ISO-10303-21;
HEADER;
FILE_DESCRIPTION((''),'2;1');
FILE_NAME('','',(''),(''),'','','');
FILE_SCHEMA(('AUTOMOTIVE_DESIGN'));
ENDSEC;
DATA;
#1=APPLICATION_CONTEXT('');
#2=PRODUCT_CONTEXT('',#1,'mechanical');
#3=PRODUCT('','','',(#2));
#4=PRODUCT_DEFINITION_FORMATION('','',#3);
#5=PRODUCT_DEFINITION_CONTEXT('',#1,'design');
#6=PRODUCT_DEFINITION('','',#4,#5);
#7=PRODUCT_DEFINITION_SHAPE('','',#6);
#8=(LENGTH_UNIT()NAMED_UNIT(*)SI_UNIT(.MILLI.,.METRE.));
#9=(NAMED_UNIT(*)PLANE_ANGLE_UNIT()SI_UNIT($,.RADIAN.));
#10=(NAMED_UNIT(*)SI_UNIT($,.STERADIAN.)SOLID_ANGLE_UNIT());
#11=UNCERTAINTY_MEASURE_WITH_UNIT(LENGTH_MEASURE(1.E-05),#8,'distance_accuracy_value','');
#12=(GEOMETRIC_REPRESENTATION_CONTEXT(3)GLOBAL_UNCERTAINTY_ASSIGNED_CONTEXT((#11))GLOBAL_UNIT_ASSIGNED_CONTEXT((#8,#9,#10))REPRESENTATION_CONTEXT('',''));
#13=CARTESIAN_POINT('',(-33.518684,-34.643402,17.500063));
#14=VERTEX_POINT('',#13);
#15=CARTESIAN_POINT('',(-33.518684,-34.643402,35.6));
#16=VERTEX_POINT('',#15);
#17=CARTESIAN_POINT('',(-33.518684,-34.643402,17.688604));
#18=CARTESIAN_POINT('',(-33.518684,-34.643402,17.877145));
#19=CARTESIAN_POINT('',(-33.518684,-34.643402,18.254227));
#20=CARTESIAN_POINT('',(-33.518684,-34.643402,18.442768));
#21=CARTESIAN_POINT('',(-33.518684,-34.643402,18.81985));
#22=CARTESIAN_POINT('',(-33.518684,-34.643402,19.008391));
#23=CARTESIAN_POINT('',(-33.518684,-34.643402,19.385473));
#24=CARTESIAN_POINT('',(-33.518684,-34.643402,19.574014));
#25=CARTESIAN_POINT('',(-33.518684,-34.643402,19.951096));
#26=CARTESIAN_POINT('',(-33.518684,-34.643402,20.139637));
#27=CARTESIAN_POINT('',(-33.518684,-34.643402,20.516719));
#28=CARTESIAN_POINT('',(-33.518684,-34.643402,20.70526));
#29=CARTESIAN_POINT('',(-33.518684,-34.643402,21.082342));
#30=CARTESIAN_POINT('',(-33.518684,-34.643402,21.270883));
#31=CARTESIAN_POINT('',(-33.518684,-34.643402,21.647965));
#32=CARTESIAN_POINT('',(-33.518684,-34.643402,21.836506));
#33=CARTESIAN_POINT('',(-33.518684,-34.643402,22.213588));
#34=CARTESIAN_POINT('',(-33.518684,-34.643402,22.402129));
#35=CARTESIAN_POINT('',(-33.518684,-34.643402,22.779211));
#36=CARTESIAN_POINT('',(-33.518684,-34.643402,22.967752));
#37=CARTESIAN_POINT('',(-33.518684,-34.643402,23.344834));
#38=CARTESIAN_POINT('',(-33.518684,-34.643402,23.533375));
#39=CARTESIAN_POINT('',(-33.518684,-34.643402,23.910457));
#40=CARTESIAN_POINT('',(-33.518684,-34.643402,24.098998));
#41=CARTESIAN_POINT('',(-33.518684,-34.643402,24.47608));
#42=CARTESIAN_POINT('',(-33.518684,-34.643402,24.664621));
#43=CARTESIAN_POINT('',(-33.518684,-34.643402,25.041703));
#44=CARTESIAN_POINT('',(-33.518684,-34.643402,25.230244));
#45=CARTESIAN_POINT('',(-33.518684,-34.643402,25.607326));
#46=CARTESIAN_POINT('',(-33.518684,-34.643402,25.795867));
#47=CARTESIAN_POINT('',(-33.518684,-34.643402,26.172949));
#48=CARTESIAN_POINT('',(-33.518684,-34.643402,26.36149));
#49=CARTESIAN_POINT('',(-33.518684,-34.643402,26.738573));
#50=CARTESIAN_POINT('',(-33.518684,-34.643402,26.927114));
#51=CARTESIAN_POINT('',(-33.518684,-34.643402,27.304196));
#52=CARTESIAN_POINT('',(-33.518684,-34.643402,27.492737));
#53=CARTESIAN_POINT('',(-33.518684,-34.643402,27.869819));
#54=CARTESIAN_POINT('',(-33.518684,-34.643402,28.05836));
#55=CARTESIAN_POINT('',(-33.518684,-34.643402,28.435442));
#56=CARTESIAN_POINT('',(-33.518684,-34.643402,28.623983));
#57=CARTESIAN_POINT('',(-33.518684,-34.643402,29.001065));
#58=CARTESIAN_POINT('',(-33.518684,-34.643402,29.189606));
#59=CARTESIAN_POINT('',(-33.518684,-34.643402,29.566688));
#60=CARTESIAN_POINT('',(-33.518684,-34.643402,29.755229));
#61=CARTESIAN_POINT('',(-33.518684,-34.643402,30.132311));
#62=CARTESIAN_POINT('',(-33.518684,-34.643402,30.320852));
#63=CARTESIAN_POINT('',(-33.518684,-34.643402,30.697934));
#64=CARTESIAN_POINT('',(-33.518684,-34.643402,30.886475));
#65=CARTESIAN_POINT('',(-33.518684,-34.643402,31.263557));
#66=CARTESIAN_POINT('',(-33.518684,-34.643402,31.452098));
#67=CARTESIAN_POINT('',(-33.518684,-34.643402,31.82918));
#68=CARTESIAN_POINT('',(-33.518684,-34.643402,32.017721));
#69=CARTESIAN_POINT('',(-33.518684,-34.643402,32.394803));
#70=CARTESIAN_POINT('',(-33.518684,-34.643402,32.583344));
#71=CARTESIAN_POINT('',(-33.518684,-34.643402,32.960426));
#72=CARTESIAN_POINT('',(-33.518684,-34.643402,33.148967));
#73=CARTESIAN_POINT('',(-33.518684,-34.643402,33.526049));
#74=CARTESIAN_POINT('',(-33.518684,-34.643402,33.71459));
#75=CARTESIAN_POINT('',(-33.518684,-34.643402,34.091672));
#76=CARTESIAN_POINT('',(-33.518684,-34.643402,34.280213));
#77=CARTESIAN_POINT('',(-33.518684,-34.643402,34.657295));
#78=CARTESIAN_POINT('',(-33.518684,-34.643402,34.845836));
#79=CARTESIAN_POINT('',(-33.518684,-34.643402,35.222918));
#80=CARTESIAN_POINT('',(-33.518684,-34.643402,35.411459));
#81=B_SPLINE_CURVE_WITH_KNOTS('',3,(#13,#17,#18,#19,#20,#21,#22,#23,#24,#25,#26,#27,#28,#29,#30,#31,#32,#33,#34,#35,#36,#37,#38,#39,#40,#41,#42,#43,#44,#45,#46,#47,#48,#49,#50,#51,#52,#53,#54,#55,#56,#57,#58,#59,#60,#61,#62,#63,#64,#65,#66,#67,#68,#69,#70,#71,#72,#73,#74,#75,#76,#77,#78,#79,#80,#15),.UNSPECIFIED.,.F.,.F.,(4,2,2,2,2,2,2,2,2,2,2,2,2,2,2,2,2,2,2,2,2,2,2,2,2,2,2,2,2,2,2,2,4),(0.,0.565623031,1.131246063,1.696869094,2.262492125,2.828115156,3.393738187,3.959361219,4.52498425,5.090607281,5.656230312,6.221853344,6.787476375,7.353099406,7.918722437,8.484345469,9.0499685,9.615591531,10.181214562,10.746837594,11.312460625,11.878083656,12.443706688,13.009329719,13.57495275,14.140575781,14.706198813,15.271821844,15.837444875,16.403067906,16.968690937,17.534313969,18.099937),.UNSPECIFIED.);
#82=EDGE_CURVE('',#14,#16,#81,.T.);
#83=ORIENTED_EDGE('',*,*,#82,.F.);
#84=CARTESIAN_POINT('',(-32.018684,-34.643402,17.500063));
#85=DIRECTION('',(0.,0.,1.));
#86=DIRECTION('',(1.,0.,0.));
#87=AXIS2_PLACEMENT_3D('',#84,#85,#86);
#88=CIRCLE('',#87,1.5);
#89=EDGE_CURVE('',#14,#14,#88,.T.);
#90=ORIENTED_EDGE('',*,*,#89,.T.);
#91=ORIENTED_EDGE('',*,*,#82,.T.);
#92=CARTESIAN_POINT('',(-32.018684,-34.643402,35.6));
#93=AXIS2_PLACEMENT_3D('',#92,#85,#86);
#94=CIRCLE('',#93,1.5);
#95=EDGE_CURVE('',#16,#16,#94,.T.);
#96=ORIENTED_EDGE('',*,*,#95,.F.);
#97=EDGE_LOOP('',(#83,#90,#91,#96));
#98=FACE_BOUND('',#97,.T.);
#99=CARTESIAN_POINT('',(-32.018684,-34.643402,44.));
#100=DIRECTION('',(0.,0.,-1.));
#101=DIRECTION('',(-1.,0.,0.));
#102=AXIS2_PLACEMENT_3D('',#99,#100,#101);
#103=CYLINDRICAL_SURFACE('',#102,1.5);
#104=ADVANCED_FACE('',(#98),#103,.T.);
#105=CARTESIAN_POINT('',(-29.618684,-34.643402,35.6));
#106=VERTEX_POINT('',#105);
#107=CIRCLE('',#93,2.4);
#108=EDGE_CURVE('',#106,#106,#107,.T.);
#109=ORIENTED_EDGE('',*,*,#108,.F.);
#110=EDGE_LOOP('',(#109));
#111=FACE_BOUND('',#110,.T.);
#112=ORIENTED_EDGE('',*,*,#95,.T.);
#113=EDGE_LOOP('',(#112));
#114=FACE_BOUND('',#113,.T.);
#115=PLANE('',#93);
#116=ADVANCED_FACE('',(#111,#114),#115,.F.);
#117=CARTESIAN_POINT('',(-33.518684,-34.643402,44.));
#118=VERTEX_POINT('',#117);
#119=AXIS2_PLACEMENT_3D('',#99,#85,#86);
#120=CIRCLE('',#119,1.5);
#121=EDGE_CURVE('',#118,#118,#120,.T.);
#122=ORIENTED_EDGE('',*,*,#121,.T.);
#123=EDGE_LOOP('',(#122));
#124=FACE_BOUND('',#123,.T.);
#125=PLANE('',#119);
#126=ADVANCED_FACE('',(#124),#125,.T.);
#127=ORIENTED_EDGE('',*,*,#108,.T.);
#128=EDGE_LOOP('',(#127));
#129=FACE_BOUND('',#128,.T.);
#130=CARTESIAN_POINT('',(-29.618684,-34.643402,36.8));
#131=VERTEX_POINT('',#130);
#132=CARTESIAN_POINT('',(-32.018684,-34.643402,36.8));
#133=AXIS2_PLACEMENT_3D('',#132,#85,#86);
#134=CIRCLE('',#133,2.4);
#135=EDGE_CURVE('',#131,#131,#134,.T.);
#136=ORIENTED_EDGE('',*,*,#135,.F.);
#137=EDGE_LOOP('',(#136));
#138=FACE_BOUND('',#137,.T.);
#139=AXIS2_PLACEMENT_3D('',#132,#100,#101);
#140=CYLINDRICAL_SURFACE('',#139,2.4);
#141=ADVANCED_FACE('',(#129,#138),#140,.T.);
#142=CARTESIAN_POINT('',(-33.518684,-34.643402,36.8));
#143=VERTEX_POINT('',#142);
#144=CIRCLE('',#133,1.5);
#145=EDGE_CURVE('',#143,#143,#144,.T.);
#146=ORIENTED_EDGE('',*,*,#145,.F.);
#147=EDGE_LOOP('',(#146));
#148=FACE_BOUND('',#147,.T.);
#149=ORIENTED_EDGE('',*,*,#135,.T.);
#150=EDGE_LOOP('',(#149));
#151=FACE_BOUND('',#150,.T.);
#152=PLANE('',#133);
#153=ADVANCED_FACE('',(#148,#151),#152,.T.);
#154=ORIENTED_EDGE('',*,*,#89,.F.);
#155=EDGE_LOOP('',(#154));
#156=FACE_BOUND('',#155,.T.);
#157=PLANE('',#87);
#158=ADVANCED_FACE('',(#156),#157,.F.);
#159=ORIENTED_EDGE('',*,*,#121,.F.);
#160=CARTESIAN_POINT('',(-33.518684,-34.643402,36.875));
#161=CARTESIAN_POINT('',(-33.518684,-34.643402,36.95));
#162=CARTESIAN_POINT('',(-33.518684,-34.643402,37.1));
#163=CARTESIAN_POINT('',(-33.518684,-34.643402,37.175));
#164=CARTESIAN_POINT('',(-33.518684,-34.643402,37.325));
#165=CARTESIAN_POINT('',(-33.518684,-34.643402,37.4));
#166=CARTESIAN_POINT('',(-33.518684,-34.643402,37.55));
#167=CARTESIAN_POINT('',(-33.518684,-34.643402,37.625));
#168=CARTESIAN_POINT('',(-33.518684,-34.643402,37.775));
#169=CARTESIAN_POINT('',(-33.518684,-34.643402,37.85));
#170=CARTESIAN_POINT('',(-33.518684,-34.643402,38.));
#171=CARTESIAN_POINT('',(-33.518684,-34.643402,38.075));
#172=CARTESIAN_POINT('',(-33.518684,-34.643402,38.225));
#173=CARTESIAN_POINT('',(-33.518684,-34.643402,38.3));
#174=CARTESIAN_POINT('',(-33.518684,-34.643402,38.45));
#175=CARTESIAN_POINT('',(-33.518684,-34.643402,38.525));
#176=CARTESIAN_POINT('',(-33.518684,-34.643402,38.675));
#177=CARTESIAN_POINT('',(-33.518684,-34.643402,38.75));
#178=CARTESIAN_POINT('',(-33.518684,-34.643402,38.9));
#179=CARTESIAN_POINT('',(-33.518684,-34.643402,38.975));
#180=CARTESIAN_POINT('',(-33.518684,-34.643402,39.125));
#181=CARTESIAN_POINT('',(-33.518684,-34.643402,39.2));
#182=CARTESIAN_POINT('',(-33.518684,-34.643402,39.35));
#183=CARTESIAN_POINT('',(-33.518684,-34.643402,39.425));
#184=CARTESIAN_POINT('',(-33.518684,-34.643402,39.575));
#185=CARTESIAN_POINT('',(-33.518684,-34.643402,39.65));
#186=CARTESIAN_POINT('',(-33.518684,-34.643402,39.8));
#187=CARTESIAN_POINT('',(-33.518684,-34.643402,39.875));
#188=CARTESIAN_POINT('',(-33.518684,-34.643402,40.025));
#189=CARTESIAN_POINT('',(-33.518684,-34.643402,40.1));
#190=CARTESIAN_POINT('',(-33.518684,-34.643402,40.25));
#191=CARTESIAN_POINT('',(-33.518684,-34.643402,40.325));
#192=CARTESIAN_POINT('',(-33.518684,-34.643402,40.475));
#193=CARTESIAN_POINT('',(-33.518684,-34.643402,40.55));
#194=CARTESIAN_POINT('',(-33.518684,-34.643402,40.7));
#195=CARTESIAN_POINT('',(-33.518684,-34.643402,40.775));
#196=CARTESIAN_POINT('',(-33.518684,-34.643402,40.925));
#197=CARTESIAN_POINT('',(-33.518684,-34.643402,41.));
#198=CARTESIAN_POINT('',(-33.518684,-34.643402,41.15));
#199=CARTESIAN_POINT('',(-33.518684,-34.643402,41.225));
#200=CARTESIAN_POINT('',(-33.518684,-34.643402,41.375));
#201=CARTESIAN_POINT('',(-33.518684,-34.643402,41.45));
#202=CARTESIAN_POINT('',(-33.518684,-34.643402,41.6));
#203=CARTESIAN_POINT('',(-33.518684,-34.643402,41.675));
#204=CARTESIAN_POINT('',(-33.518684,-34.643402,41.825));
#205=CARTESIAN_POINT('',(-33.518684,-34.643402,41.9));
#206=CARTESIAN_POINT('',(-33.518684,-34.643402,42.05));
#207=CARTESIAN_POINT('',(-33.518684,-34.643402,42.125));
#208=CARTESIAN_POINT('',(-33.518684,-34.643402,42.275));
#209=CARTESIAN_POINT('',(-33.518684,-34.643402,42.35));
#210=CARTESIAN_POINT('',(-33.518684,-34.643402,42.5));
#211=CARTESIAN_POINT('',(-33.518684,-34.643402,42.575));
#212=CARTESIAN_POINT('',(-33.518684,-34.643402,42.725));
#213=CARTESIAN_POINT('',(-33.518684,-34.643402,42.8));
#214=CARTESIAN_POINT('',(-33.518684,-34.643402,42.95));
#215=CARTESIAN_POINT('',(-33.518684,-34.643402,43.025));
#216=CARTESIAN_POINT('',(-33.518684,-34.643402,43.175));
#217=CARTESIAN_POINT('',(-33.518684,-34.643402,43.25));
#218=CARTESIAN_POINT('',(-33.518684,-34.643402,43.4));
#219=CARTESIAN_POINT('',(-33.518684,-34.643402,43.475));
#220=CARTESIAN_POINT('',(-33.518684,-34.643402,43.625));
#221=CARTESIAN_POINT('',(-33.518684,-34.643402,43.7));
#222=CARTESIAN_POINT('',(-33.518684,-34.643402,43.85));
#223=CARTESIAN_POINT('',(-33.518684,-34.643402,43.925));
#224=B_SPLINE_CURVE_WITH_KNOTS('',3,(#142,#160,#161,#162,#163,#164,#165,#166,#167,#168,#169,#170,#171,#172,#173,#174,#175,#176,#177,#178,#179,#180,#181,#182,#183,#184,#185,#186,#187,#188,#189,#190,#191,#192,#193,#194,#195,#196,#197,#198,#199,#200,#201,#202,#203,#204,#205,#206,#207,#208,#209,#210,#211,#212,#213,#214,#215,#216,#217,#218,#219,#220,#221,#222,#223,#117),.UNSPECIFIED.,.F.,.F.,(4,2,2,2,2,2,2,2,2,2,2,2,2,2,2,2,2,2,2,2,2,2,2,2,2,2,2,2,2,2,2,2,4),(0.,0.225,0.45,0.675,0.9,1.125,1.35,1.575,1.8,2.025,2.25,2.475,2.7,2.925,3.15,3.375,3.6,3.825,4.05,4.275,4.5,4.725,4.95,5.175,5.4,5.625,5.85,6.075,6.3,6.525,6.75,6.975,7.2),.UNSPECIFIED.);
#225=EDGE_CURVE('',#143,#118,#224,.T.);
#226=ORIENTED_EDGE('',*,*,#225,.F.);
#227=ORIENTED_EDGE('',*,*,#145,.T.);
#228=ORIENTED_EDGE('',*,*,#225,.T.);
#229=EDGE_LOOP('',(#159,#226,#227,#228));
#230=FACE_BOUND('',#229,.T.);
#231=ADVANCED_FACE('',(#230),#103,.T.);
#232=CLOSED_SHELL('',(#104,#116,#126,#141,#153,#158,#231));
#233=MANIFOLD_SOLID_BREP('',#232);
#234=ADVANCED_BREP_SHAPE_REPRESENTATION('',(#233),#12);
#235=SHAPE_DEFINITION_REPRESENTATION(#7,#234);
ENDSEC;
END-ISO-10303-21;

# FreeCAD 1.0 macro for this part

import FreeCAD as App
import Part
import Sketcher
Q = App.Units.Quantity

doc = App.newDocument("Part")
body = doc.addObject("PartDesign::Body", "Body")

# Sketch on XY plane
sketch1 = doc.addObject("Sketcher::SketchObject", "Sketch")
body.addObject(sketch1)
sketch1.AttachmentSupport = (doc.XY_Plane, [""])
sketch1.MapMode = "FlatFace"
sketch1.AttachmentOffset = App.Placement(App.Vector(0, 0, 17.500063), App.Rotation())
sketch1.addGeometry(Part.Circle(App.Vector(-32.018684, -34.643402, 0), App.Vector(0, 0, 1), 1.5), False)
sketch1.addConstraint([
    Sketcher.Constraint("Diameter", 0, Q("3 mm")),
    Sketcher.Constraint("DistanceX", 0, 3, -1, 1, Q("32.018684 mm")),
    Sketcher.Constraint("DistanceY", 0, 3, -1, 1, Q("34.643402 mm")),
])
pad1 = doc.addObject("PartDesign::Pad", "Pad")
body.addObject(pad1)
pad1.Profile = sketch1
pad1.Length = 26.499937

# Sketch on XY plane
sketch2 = doc.addObject("Sketcher::SketchObject", "Sketch001")
body.addObject(sketch2)
sketch2.AttachmentSupport = (doc.XY_Plane, [""])
sketch2.MapMode = "FlatFace"
sketch2.AttachmentOffset = App.Placement(App.Vector(0, 0, 35.6), App.Rotation())
sketch2.addGeometry(Part.Circle(App.Vector(-32.018684, -34.643402, 0), App.Vector(0, 0, 1), 2.4), False)
sketch2.addConstraint([
    Sketcher.Constraint("Diameter", 0, Q("4.8 mm")),
    Sketcher.Constraint("DistanceX", 0, 3, -1, 1, Q("32.018684 mm")),
    Sketcher.Constraint("DistanceY", 0, 3, -1, 1, Q("34.643402 mm")),
])
pad2 = doc.addObject("PartDesign::Pad", "Pad001")
body.addObject(pad2)
pad2.Profile = sketch2
pad2.Length = 1.2

doc.recompute()
